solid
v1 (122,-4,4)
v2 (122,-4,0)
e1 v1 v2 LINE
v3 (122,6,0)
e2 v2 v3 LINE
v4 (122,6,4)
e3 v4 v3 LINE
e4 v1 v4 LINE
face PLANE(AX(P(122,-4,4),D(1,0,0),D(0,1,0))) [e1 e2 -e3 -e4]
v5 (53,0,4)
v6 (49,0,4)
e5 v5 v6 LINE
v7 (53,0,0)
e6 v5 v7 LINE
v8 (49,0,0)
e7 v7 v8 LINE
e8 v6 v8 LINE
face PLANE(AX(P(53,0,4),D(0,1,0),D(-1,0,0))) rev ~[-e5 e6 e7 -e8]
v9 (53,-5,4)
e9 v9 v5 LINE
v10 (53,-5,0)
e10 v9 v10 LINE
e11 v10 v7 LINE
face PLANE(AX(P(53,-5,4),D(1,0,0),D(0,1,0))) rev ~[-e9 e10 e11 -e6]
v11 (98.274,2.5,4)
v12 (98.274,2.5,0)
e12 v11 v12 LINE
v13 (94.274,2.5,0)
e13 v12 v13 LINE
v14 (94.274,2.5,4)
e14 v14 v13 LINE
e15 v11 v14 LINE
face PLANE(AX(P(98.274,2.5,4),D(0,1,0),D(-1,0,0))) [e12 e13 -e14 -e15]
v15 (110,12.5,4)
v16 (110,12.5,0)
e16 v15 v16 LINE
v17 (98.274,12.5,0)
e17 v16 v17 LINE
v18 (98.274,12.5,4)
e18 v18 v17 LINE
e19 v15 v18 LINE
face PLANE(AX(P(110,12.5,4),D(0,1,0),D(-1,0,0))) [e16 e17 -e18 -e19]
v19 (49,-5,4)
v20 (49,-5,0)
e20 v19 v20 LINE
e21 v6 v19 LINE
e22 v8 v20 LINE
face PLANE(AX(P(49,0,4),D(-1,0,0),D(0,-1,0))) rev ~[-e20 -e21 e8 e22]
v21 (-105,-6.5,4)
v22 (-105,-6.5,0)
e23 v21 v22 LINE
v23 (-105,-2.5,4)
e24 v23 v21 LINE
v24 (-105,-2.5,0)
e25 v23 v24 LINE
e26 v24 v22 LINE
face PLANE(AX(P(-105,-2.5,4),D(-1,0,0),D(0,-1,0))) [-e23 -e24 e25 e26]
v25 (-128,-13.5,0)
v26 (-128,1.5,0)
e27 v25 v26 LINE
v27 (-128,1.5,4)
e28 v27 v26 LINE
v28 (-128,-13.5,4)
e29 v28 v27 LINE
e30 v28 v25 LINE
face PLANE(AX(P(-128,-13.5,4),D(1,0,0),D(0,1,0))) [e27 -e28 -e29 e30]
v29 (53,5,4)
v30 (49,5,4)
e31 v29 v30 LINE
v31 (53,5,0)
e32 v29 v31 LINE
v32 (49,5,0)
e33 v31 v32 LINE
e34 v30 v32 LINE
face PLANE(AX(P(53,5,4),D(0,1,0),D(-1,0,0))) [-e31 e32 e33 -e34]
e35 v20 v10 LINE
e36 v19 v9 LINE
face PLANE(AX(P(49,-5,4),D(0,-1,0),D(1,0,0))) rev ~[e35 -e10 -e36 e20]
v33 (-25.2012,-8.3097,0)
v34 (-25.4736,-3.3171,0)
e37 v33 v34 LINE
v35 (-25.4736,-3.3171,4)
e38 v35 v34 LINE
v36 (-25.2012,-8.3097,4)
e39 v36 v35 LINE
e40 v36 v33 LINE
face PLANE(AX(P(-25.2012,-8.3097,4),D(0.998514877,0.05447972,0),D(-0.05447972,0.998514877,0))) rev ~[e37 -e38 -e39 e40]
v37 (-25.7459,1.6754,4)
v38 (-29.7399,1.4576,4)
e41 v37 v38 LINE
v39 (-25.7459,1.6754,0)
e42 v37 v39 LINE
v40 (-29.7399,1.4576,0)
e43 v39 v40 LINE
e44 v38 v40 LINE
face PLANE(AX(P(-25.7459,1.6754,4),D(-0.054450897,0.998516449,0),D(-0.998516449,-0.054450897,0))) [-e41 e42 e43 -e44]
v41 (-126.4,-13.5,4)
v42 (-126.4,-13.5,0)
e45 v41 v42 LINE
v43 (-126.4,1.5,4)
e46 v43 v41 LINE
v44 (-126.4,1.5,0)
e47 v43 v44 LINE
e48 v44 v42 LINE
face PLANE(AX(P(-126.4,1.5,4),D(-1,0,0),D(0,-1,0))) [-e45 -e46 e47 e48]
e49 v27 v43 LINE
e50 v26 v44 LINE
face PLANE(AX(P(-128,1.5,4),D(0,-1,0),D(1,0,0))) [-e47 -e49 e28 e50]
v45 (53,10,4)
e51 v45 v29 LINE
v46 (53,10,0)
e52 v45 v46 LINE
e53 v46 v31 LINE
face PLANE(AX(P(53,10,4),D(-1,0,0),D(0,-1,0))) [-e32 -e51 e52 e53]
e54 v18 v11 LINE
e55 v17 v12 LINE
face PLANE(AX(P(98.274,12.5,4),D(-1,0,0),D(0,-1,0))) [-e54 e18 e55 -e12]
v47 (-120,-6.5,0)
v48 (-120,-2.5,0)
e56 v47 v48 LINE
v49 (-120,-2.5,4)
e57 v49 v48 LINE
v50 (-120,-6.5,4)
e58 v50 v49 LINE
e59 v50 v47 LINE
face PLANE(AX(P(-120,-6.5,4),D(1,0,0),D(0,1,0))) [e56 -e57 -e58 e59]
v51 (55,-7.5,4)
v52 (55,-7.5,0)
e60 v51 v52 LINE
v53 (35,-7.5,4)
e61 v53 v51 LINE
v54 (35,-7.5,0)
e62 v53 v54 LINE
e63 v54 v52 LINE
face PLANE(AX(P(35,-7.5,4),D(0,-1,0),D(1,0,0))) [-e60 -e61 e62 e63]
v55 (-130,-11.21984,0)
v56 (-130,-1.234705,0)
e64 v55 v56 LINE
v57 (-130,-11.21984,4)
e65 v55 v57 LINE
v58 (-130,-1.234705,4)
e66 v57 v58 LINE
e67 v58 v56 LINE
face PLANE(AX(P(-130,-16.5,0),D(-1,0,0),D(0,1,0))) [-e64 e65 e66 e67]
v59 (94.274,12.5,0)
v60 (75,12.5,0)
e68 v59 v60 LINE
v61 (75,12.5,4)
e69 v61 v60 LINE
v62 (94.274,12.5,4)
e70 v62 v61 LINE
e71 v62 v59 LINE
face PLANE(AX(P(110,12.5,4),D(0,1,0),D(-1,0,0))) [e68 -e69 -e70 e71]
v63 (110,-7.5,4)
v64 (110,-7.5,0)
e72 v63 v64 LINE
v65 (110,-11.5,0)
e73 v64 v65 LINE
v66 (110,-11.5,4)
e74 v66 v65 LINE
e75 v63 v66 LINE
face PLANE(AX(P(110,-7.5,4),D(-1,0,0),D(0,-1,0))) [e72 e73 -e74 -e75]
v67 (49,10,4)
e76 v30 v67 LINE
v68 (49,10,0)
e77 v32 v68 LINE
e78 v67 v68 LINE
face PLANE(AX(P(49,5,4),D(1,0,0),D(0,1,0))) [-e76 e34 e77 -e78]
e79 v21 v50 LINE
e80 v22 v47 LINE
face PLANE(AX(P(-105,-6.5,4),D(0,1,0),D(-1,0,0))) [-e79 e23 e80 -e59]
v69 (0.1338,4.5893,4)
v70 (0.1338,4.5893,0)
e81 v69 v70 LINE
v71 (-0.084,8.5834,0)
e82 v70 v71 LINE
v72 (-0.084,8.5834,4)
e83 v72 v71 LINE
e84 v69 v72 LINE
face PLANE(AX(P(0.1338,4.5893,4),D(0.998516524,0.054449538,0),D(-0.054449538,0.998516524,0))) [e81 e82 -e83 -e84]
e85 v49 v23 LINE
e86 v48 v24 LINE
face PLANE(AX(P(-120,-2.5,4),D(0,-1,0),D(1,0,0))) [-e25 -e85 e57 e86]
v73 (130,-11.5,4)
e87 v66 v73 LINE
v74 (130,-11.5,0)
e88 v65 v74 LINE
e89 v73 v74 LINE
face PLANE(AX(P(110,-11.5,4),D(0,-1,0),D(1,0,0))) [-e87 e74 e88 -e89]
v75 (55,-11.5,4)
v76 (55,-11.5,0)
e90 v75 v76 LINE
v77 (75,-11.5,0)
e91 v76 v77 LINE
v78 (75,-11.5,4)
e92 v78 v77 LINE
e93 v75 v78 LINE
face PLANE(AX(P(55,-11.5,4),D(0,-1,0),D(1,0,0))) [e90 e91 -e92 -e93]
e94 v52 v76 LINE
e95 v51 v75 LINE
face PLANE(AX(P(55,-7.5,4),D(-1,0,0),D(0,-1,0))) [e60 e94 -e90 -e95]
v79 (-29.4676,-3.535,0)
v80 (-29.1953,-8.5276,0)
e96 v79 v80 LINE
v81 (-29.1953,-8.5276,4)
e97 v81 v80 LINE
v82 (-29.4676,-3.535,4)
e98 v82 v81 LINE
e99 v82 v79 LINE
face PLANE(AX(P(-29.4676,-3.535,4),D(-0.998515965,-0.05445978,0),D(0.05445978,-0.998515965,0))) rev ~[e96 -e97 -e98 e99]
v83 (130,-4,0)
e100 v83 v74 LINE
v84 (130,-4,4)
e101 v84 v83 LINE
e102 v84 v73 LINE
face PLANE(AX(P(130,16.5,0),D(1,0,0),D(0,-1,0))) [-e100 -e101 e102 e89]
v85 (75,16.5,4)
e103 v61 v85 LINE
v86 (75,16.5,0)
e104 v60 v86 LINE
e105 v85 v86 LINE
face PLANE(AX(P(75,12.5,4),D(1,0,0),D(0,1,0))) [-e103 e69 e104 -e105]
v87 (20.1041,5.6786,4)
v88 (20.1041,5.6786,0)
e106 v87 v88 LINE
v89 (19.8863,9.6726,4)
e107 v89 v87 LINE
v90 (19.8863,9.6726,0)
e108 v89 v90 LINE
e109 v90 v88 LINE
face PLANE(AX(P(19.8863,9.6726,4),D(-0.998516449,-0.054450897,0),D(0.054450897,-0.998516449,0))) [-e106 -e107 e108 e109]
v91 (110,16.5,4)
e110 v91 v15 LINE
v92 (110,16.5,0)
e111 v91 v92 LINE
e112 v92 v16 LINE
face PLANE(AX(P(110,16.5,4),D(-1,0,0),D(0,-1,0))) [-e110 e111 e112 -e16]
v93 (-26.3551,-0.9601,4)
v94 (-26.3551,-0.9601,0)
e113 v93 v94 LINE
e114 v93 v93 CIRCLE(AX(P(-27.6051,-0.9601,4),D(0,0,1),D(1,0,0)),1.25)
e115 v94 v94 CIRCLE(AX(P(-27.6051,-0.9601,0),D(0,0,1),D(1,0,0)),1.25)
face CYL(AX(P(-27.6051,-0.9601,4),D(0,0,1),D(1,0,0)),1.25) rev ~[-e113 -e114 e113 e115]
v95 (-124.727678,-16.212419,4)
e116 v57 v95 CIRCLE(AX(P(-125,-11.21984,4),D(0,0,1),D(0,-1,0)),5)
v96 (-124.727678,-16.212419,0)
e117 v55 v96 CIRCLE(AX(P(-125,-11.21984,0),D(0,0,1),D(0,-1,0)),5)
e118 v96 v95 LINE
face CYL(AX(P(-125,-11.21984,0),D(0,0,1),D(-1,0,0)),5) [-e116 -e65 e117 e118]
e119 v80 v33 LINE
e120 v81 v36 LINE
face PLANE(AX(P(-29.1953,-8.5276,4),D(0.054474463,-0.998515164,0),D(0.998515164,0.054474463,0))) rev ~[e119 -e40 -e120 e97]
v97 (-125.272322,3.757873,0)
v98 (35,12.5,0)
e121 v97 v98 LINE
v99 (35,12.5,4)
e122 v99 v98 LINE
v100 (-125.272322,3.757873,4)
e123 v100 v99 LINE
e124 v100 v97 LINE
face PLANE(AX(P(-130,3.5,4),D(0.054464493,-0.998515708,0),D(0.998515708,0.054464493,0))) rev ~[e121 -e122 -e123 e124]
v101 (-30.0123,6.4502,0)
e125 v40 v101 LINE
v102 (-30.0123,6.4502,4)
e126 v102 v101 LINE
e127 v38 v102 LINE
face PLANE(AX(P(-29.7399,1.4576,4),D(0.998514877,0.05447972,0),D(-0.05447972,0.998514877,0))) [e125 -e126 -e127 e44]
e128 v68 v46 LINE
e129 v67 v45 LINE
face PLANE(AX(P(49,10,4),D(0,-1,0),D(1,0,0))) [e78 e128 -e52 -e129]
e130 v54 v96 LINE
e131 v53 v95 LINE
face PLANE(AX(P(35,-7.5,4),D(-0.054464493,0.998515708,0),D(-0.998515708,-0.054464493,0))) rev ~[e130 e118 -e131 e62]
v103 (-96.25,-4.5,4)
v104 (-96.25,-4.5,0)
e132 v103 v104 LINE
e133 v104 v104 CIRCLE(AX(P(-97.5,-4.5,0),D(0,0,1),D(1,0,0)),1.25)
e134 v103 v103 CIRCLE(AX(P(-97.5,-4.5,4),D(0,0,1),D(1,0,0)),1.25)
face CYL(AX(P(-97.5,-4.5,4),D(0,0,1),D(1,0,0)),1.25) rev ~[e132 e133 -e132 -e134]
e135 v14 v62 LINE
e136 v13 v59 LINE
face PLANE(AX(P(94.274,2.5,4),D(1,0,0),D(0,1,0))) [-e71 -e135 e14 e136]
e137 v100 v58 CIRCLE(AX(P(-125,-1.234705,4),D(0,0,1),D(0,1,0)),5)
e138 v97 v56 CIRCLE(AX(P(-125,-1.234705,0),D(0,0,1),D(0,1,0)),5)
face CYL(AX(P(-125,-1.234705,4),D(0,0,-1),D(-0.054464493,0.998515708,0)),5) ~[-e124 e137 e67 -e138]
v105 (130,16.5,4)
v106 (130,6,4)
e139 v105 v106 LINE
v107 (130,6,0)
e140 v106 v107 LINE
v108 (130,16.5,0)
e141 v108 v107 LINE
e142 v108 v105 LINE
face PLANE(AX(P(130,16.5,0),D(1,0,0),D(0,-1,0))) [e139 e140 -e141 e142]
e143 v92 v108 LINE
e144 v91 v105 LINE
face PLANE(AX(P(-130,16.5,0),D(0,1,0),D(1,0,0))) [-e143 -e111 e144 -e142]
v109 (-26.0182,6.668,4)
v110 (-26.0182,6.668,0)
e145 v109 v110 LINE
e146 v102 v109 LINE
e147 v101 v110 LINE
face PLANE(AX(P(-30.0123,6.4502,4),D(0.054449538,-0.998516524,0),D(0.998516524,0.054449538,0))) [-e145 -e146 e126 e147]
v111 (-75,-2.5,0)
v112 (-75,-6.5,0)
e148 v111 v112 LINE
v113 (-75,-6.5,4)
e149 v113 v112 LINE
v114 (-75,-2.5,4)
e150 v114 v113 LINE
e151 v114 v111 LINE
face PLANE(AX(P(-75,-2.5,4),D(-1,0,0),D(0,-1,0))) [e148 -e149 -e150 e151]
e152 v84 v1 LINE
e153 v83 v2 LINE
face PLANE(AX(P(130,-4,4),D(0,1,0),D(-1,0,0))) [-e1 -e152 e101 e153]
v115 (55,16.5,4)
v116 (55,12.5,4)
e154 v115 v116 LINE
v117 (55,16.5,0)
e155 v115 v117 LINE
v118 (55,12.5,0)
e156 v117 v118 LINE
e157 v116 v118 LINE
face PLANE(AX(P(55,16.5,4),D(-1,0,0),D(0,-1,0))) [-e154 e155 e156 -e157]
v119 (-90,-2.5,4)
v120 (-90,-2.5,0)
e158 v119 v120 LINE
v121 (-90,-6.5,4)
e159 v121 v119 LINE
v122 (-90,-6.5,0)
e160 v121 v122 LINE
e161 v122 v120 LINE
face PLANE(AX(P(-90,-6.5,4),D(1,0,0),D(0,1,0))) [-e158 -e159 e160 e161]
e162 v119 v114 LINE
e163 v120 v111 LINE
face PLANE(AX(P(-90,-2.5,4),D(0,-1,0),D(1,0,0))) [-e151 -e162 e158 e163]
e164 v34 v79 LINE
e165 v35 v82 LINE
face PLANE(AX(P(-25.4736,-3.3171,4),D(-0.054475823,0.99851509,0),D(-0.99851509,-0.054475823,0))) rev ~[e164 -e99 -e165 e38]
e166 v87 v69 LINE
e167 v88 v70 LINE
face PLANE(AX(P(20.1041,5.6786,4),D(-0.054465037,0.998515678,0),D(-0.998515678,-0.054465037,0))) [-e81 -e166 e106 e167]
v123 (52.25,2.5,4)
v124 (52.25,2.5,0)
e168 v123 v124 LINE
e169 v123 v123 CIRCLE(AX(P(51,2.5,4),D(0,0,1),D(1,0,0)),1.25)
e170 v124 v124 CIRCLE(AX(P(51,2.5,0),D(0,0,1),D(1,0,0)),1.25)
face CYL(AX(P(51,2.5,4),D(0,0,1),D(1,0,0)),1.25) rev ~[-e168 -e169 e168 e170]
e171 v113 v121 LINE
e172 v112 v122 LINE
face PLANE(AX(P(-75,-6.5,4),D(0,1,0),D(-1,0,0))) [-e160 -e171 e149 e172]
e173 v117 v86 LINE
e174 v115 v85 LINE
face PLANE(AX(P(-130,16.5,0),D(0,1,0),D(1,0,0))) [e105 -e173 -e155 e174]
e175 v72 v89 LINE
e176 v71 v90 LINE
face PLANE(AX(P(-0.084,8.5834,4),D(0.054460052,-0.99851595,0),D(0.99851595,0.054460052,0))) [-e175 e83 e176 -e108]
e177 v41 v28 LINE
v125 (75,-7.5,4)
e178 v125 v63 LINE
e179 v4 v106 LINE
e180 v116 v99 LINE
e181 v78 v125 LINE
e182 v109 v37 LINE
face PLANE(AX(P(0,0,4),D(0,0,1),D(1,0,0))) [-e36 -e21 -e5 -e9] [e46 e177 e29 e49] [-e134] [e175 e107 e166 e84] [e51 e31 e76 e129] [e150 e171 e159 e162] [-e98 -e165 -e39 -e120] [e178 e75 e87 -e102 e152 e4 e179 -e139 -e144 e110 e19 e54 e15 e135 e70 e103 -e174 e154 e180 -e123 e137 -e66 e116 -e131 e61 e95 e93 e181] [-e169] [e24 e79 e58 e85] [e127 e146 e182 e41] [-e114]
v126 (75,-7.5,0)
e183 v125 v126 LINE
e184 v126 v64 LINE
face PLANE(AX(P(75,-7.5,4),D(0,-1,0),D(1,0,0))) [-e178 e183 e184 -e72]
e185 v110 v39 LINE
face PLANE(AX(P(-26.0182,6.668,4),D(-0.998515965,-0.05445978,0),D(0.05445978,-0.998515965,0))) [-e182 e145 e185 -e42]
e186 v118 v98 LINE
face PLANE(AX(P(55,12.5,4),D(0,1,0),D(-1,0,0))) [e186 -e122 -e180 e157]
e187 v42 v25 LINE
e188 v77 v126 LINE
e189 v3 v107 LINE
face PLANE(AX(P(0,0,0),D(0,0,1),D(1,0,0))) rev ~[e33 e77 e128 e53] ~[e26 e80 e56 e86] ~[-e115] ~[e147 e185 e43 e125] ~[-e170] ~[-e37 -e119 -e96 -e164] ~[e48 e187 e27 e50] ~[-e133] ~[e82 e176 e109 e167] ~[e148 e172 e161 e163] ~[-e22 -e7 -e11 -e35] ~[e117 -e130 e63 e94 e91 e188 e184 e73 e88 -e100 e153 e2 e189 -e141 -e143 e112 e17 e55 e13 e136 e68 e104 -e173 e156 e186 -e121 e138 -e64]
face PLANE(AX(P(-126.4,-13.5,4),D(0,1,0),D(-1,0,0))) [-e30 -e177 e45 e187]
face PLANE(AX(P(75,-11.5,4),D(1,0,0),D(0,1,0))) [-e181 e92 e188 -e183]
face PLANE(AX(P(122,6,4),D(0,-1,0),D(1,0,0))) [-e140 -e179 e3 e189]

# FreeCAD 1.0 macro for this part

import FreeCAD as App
import Part
import Sketcher
from FreeCAD import Vector
Q = App.Units.Quantity


def edges_at(feature, points):
    """Names of the edges that pass closest to the given points."""
    edges = feature.Shape.Edges
    near = lambda p: min(range(len(edges)), key=lambda i: edges[i].distToShape(Part.Vertex(*p))[0])
    return sorted({f"Edge{near(p) + 1}" for p in points})

doc = App.newDocument("Part")
body = doc.addObject("PartDesign::Body", "Body")

# Sketch on XY plane
sketch1 = body.newObject("Sketcher::SketchObject", "Sketch")
sketch1.AttachmentSupport = (doc.getObject("XY_Plane"), [""])
sketch1.MapMode = "FlatFace"
sketch1.addGeometry([
    Part.LineSegment(Vector(130, 16.5, 0), Vector(-130, 16.5, 0)),
    Part.LineSegment(Vector(-130, 16.5, 0), Vector(-130, -16.5, 0)),
    Part.LineSegment(Vector(-130, -16.5, 0), Vector(130, -16.5, 0)),
    Part.LineSegment(Vector(130, -16.5, 0), Vector(130, 16.5, 0)),
], False)
sketch1.addConstraint([
    Sketcher.Constraint("Coincident", 0, 2, 1, 1),
    Sketcher.Constraint("Coincident", 1, 2, 2, 1),
    Sketcher.Constraint("Coincident", 2, 2, 3, 1),
    Sketcher.Constraint("Coincident", 3, 2, 0, 1),
    Sketcher.Constraint("Horizontal", 0),
    Sketcher.Constraint("Vertical", 1),
    Sketcher.Constraint("Horizontal", 2),
    Sketcher.Constraint("Vertical", 3),
    Sketcher.Constraint("Symmetric", 0, 2, 2, 2, -1, 1),
    Sketcher.Constraint("DistanceX", 0, 2, 0, 1, Q("260 mm")),
    Sketcher.Constraint("DistanceY", 1, 2, 1, 1, Q("33 mm")),
])
pad1 = body.newObject("PartDesign::Pad", "Pad")
pad1.Profile = sketch1
pad1.Length = 4

# Sketch on XY plane
sketch2 = body.newObject("Sketcher::SketchObject", "Sketch001")
sketch2.AttachmentSupport = (doc.getObject("XY_Plane"), [""])
sketch2.MapMode = "FlatFace"
sketch2.AttachmentOffset = App.Placement(Vector(0, 0, 4), App.Rotation())
sketch2.addGeometry([
    Part.LineSegment(Vector(130, -16.5, 0), Vector(130, -11.5, 0)),  # 0
    Part.LineSegment(Vector(130, -11.5, 0), Vector(110, -11.5, 0)),  # 1
    Part.LineSegment(Vector(110, -11.5, 0), Vector(110, -7.5, 0)),  # 2
    Part.LineSegment(Vector(110, -7.5, 0), Vector(75, -7.5, 0)),  # 3
    Part.LineSegment(Vector(75, -7.5, 0), Vector(75, -11.5, 0)),  # 4
    Part.LineSegment(Vector(75, -11.5, 0), Vector(55, -11.5, 0)),  # 5
    Part.LineSegment(Vector(55, -11.5, 0), Vector(55, -7.5, 0)),  # 6
    Part.LineSegment(Vector(55, -7.5, 0), Vector(35, -7.5, 0)),  # 7
    Part.LineSegment(Vector(35, -7.5, 0), Vector(35, -16.5, 0)),  # 8
    Part.LineSegment(Vector(35, -16.5, 0), Vector(130, -16.5, 0)),  # 9
    Part.LineSegment(Vector(110, 12.5, 0), Vector(110, 16.5, 0)),  # 10
    Part.LineSegment(Vector(110, 16.5, 0), Vector(75, 16.5, 0)),  # 11
    Part.LineSegment(Vector(75, 16.5, 0), Vector(75, 12.5, 0)),  # 12
    Part.LineSegment(Vector(75, 12.5, 0), Vector(110, 12.5, 0)),  # 13
    Part.LineSegment(Vector(55, 12.5, 0), Vector(55, 16.5, 0)),  # 14
    Part.LineSegment(Vector(55, 16.5, 0), Vector(-130, 16.5, 0)),  # 15
    Part.LineSegment(Vector(-130, 16.5, 0), Vector(-130, 12.5, 0)),  # 16
    Part.LineSegment(Vector(-130, 12.5, 0), Vector(55, 12.5, 0)),  # 17
], False)
sketch2.addConstraint([
    Sketcher.Constraint("Coincident", 0, 2, 1, 1),
    Sketcher.Constraint("Coincident", 1, 2, 2, 1),
    Sketcher.Constraint("Coincident", 2, 2, 3, 1),
    Sketcher.Constraint("Coincident", 3, 2, 4, 1),
    Sketcher.Constraint("Coincident", 4, 2, 5, 1),
    Sketcher.Constraint("Coincident", 5, 2, 6, 1),
    Sketcher.Constraint("Coincident", 6, 2, 7, 1),
    Sketcher.Constraint("Coincident", 7, 2, 8, 1),
    Sketcher.Constraint("Coincident", 8, 2, 9, 1),
    Sketcher.Constraint("Coincident", 9, 2, 0, 1),
    Sketcher.Constraint("Coincident", 10, 2, 11, 1),
    Sketcher.Constraint("Coincident", 11, 2, 12, 1),
    Sketcher.Constraint("Coincident", 12, 2, 13, 1),
    Sketcher.Constraint("Coincident", 13, 2, 10, 1),
    Sketcher.Constraint("Coincident", 14, 2, 15, 1),
    Sketcher.Constraint("Coincident", 15, 2, 16, 1),
    Sketcher.Constraint("Coincident", 16, 2, 17, 1),
    Sketcher.Constraint("Coincident", 17, 2, 14, 1),
    Sketcher.Constraint("Vertical", 0),
    Sketcher.Constraint("Horizontal", 1),
    Sketcher.Constraint("Vertical", 2),
    Sketcher.Constraint("Horizontal", 3),
    Sketcher.Constraint("Vertical", 4),
    Sketcher.Constraint("Horizontal", 5),
    Sketcher.Constraint("Vertical", 6),
    Sketcher.Constraint("Horizontal", 7),
    Sketcher.Constraint("Vertical", 8),
    Sketcher.Constraint("Horizontal", 9),
    Sketcher.Constraint("Vertical", 10),
    Sketcher.Constraint("Horizontal", 11),
    Sketcher.Constraint("Vertical", 12),
    Sketcher.Constraint("Horizontal", 13),
    Sketcher.Constraint("Vertical", 14),
    Sketcher.Constraint("Horizontal", 15),
    Sketcher.Constraint("Vertical", 16),
    Sketcher.Constraint("Horizontal", 17),
    Sketcher.Constraint("Symmetric", 9, 2, 15, 2, -1, 1),
    Sketcher.Constraint("Horizontal", 1, 2, 4, 2),
    Sketcher.Constraint("Horizontal", 3, 2, 6, 2),
    Sketcher.Constraint("Horizontal", 11, 2, 14, 2),
    Sketcher.Constraint("Horizontal", 13, 2, 16, 2),
    Sketcher.Constraint("Vertical", 2, 2, 10, 2),
    Sketcher.Constraint("Vertical", 4, 2, 11, 2),
    Sketcher.Constraint("Vertical", 6, 2, 14, 2),
    Sketcher.Constraint("Equal", 1, 5),
    Sketcher.Constraint("Equal", 5, 7),
    Sketcher.Constraint("Equal", 6, 10),
    Sketcher.Constraint("DistanceX", 1, 2, 1, 1, Q("20 mm")),
    Sketcher.Constraint("DistanceX", 3, 2, 3, 1, Q("35 mm")),
    Sketcher.Constraint("DistanceX", 15, 2, 15, 1, Q("185 mm")),
    Sketcher.Constraint("DistanceY", 0, 1, 0, 2, Q("5 mm")),
    Sketcher.Constraint("DistanceY", 2, 1, 2, 2, Q("4 mm")),
    Sketcher.Constraint("DistanceY", 3, 2, 12, 2, Q("20 mm")),
])
pocket1 = body.newObject("PartDesign::Pocket", "Pocket")
pocket1.Profile = sketch2
pocket1.Length = 4

# Sketch on XY plane
sketch3 = body.newObject("Sketcher::SketchObject", "Sketch002")
sketch3.AttachmentSupport = (doc.getObject("XY_Plane"), [""])
sketch3.MapMode = "FlatFace"
sketch3.AttachmentOffset = App.Placement(Vector(0, 0, 4), App.Rotation())
sketch3.addGeometry([
    Part.LineSegment(Vector(-130, 3.5, 0), Vector(35, 12.5, 0)),  # 0
    Part.LineSegment(Vector(35, 12.5, 0), Vector(-130, 12.5, 0)),  # 1
    Part.LineSegment(Vector(-130, 12.5, 0), Vector(-130, 3.5, 0)),  # 2
    Part.LineSegment(Vector(35, -7.5, 0), Vector(-130, -16.5, 0)),  # 3
    Part.LineSegment(Vector(-130, -16.5, 0), Vector(35, -16.5, 0)),  # 4
    Part.LineSegment(Vector(35, -16.5, 0), Vector(35, -7.5, 0)),  # 5
], False)
sketch3.addConstraint([
    Sketcher.Constraint("Coincident", 0, 2, 1, 1),
    Sketcher.Constraint("Coincident", 1, 2, 2, 1),
    Sketcher.Constraint("Coincident", 2, 2, 0, 1),
    Sketcher.Constraint("Coincident", 3, 2, 4, 1),
    Sketcher.Constraint("Coincident", 4, 2, 5, 1),
    Sketcher.Constraint("Coincident", 5, 2, 3, 1),
    Sketcher.Constraint("Horizontal", 1),
    Sketcher.Constraint("Vertical", 2),
    Sketcher.Constraint("Horizontal", 4),
    Sketcher.Constraint("Vertical", 5),
    Sketcher.Constraint("Parallel", 0, 3),
    Sketcher.Constraint("Vertical", 2, 2, 3, 2),
    Sketcher.Constraint("Vertical", 0, 2, 4, 2),
    Sketcher.Constraint("DistanceY", 3, 2, 2, 2, Q("20 mm")),
    Sketcher.Constraint("DistanceX", 1, 2, 1, 1, Q("165 mm")),
    Sketcher.Constraint("DistanceY", 2, 2, 2, 1, Q("9 mm")),
    Sketcher.Constraint("DistanceX", -1, 1, 0, 2, Q("35 mm")),
    Sketcher.Constraint("DistanceY", -1, 1, 0, 2, Q("12.5 mm")),
])
pocket2 = body.newObject("PartDesign::Pocket", "Pocket001")
pocket2.Profile = sketch3
pocket2.Length = 4

# Sketch on XY plane
sketch4 = body.newObject("Sketcher::SketchObject", "Sketch003")
sketch4.AttachmentSupport = (doc.getObject("XY_Plane"), [""])
sketch4.MapMode = "FlatFace"
sketch4.AttachmentOffset = App.Placement(Vector(0, 0, 4), App.Rotation())
sketch4.addGeometry([
    Part.LineSegment(Vector(98.274, 2.5, 0), Vector(98.274, 12.5, 0)),
    Part.LineSegment(Vector(98.274, 12.5, 0), Vector(94.274, 12.5, 0)),
    Part.LineSegment(Vector(94.274, 12.5, 0), Vector(94.274, 2.5, 0)),
    Part.LineSegment(Vector(94.274, 2.5, 0), Vector(98.274, 2.5, 0)),
], False)
sketch4.addConstraint([
    Sketcher.Constraint("Coincident", 0, 2, 1, 1),
    Sketcher.Constraint("Coincident", 1, 2, 2, 1),
    Sketcher.Constraint("Coincident", 2, 2, 3, 1),
    Sketcher.Constraint("Coincident", 3, 2, 0, 1),
    Sketcher.Constraint("Vertical", 0),
    Sketcher.Constraint("Horizontal", 1),
    Sketcher.Constraint("Vertical", 2),
    Sketcher.Constraint("Horizontal", 3),
    Sketcher.Constraint("DistanceX", 1, 2, 1, 1, Q("4 mm")),
    Sketcher.Constraint("DistanceY", 0, 1, 0, 2, Q("10 mm")),
    Sketcher.Constraint("DistanceY", -1, 1, 0, 2, Q("12.5 mm")),
    Sketcher.Constraint("DistanceX", -1, 1, 0, 2, Q("98.274 mm")),
])
pocket3 = body.newObject("PartDesign::Pocket", "Pocket002")
pocket3.Profile = sketch4
pocket3.Length = 4

# Sketch on XY plane
sketch5 = body.newObject("Sketcher::SketchObject", "Sketch004")
sketch5.AttachmentSupport = (doc.getObject("XY_Plane"), [""])
sketch5.MapMode = "FlatFace"
sketch5.AttachmentOffset = App.Placement(Vector(0, 0, 4), App.Rotation())
sketch5.addGeometry([
    Part.LineSegment(Vector(-105, -2.5, 0), Vector(-120, -2.5, 0)),  # 0
    Part.LineSegment(Vector(-120, -2.5, 0), Vector(-120, -6.5, 0)),  # 1
    Part.LineSegment(Vector(-120, -6.5, 0), Vector(-105, -6.5, 0)),  # 2
    Part.LineSegment(Vector(-105, -6.5, 0), Vector(-105, -2.5, 0)),  # 3
    Part.LineSegment(Vector(-75, -2.5, 0), Vector(-90, -2.5, 0)),  # 4
    Part.LineSegment(Vector(-90, -2.5, 0), Vector(-90, -6.5, 0)),  # 5
    Part.LineSegment(Vector(-90, -6.5, 0), Vector(-75, -6.5, 0)),  # 6
    Part.LineSegment(Vector(-75, -6.5, 0), Vector(-75, -2.5, 0)),  # 7
    Part.Circle(Vector(-97.5, -4.5, 0), Vector(0, 0, 1), 1.25),  # 8
], False)
sketch5.addConstraint([
    Sketcher.Constraint("Coincident", 0, 2, 1, 1),
    Sketcher.Constraint("Coincident", 1, 2, 2, 1),
    Sketcher.Constraint("Coincident", 2, 2, 3, 1),
    Sketcher.Constraint("Coincident", 3, 2, 0, 1),
    Sketcher.Constraint("Coincident", 4, 2, 5, 1),
    Sketcher.Constraint("Coincident", 5, 2, 6, 1),
    Sketcher.Constraint("Coincident", 6, 2, 7, 1),
    Sketcher.Constraint("Coincident", 7, 2, 4, 1),
    Sketcher.Constraint("Horizontal", 0),
    Sketcher.Constraint("Vertical", 1),
    Sketcher.Constraint("Horizontal", 2),
    Sketcher.Constraint("Vertical", 3),
    Sketcher.Constraint("Horizontal", 4),
    Sketcher.Constraint("Vertical", 5),
    Sketcher.Constraint("Horizontal", 6),
    Sketcher.Constraint("Vertical", 7),
    Sketcher.Constraint("Horizontal", 3, 2, 4, 2),
    Sketcher.Constraint("Horizontal", 2, 2, 5, 2),
    Sketcher.Constraint("Equal", 2, 4),
    Sketcher.Constraint("Diameter", 8, Q("2.5 mm")),
    Sketcher.Constraint("DistanceX", 0, 2, 0, 1, Q("15 mm")),
    Sketcher.Constraint("DistanceY", 1, 2, 1, 1, Q("4 mm")),
    Sketcher.Constraint("DistanceY", 8, 3, 0, 2, Q("2 mm")),
    Sketcher.Constraint("DistanceX", 3, 2, 4, 2, Q("15 mm")),
    Sketcher.Constraint("DistanceY", 0, 2, -1, 1, Q("2.5 mm")),
    Sketcher.Constraint("DistanceX", 2, 2, 8, 3, Q("7.5 mm")),
    Sketcher.Constraint("DistanceX", 0, 2, -1, 1, Q("120 mm")),
])
pocket4 = body.newObject("PartDesign::Pocket", "Pocket003")
pocket4.Profile = sketch5
pocket4.Length = 4

# Sketch on XY plane
sketch6 = body.newObject("Sketcher::SketchObject", "Sketch005")
sketch6.AttachmentSupport = (doc.getObject("XY_Plane"), [""])
sketch6.MapMode = "FlatFace"
sketch6.AttachmentOffset = App.Placement(Vector(0, 0, 4), App.Rotation())
sketch6.addGeometry([
    Part.LineSegment(Vector(130, -4, 0), Vector(130, 6, 0)),
    Part.LineSegment(Vector(130, 6, 0), Vector(122, 6, 0)),
    Part.LineSegment(Vector(122, 6, 0), Vector(122, -4, 0)),
    Part.LineSegment(Vector(122, -4, 0), Vector(130, -4, 0)),
], False)
sketch6.addConstraint([
    Sketcher.Constraint("Coincident", 0, 2, 1, 1),
    Sketcher.Constraint("Coincident", 1, 2, 2, 1),
    Sketcher.Constraint("Coincident", 2, 2, 3, 1),
    Sketcher.Constraint("Coincident", 3, 2, 0, 1),
    Sketcher.Constraint("Vertical", 0),
    Sketcher.Constraint("Horizontal", 1),
    Sketcher.Constraint("Vertical", 2),
    Sketcher.Constraint("Horizontal", 3),
    Sketcher.Constraint("DistanceX", 1, 2, 1, 1, Q("8 mm")),
    Sketcher.Constraint("DistanceY", 0, 1, 0, 2, Q("10 mm")),
    Sketcher.Constraint("DistanceY", 2, 2, -1, 1, Q("4 mm")),
    Sketcher.Constraint("DistanceX", -1, 1, 0, 2, Q("130 mm")),
])
pocket5 = body.newObject("PartDesign::Pocket", "Pocket004")
pocket5.Profile = sketch6
pocket5.Length = 4

# Sketch on XY plane
sketch7 = body.newObject("Sketcher::SketchObject", "Sketch006")
sketch7.AttachmentSupport = (doc.getObject("XY_Plane"), [""])
sketch7.MapMode = "FlatFace"
sketch7.AttachmentOffset = App.Placement(Vector(0, 0, 4), App.Rotation())
sketch7.addGeometry([
    Part.LineSegment(Vector(19.8863, 9.6726, 0), Vector(-0.084, 8.5834, 0)),
    Part.LineSegment(Vector(-0.084, 8.5834, 0), Vector(0.1338, 4.5893, 0)),
    Part.LineSegment(Vector(0.1338, 4.5893, 0), Vector(20.1041, 5.6786, 0)),
    Part.LineSegment(Vector(20.1041, 5.6786, 0), Vector(19.8863, 9.6726, 0)),
], False)
sketch7.addConstraint([
    Sketcher.Constraint("Coincident", 0, 2, 1, 1),
    Sketcher.Constraint("Coincident", 1, 2, 2, 1),
    Sketcher.Constraint("Coincident", 2, 2, 3, 1),
    Sketcher.Constraint("Coincident", 3, 2, 0, 1),
    Sketcher.Constraint("Perpendicular", 0, 1),
    Sketcher.Constraint("Perpendicular", 1, 2),
    Sketcher.Constraint("Perpendicular", 2, 3),
    Sketcher.Constraint("Distance", 0, Q("20 mm")),
    Sketcher.Constraint("Distance", 1, Q("4 mm")),
    Sketcher.Constraint("DistanceX", 0, 2, -1, 1, Q("0.084 mm")),
    Sketcher.Constraint("DistanceX", -1, 1, 2, 2, Q("20.104 mm")),
    Sketcher.Constraint("DistanceY", -1, 1, 0, 2, Q("8.5834 mm")),
])
pocket6 = body.newObject("PartDesign::Pocket", "Pocket005")
pocket6.Profile = sketch7
pocket6.Length = 4

# Sketch on XY plane
sketch8 = body.newObject("Sketcher::SketchObject", "Sketch007")
sketch8.AttachmentSupport = (doc.getObject("XY_Plane"), [""])
sketch8.MapMode = "FlatFace"
sketch8.AttachmentOffset = App.Placement(Vector(0, 0, 4), App.Rotation())
sketch8.addGeometry([
    Part.LineSegment(Vector(-26.0182, 6.668, 0), Vector(-30.0123, 6.4502, 0)),  # 0
    Part.LineSegment(Vector(-30.0123, 6.4502, 0), Vector(-29.7399, 1.4576, 0)),  # 1
    Part.LineSegment(Vector(-29.7399, 1.4576, 0), Vector(-25.7459, 1.6754, 0)),  # 2
    Part.LineSegment(Vector(-25.7459, 1.6754, 0), Vector(-26.0182, 6.668, 0)),  # 3
    Part.LineSegment(Vector(-29.4676, -3.535, 0), Vector(-29.1953, -8.5276, 0)),  # 4
    Part.LineSegment(Vector(-29.1953, -8.5276, 0), Vector(-25.2012, -8.3097, 0)),  # 5
    Part.LineSegment(Vector(-25.2012, -8.3097, 0), Vector(-25.4736, -3.3171, 0)),  # 6
    Part.LineSegment(Vector(-25.4736, -3.3171, 0), Vector(-29.4676, -3.535, 0)),  # 7
    Part.Circle(Vector(-27.6051, -0.9601, 0), Vector(0, 0, 1), 1.25),  # 8
    Part.LineSegment(Vector(53, 10, 0), Vector(49, 10, 0)),  # 9
    Part.LineSegment(Vector(49, 10, 0), Vector(49, 5, 0)),  # 10
    Part.LineSegment(Vector(49, 5, 0), Vector(53, 5, 0)),  # 11
    Part.LineSegment(Vector(53, 5, 0), Vector(53, 10, 0)),  # 12
    Part.LineSegment(Vector(49, 0, 0), Vector(49, -5, 0)),  # 13
    Part.LineSegment(Vector(49, -5, 0), Vector(53, -5, 0)),  # 14
    Part.LineSegment(Vector(53, -5, 0), Vector(53, 0, 0)),  # 15
    Part.LineSegment(Vector(53, 0, 0), Vector(49, 0, 0)),  # 16
    Part.Circle(Vector(51, 2.5, 0), Vector(0, 0, 1), 1.25),  # 17
], False)
sketch8.addConstraint([
    Sketcher.Constraint("Coincident", 0, 2, 1, 1),
    Sketcher.Constraint("Coincident", 1, 2, 2, 1),
    Sketcher.Constraint("Coincident", 2, 2, 3, 1),
    Sketcher.Constraint("Coincident", 3, 2, 0, 1),
    Sketcher.Constraint("Coincident", 4, 2, 5, 1),
    Sketcher.Constraint("Coincident", 5, 2, 6, 1),
    Sketcher.Constraint("Coincident", 6, 2, 7, 1),
    Sketcher.Constraint("Coincident", 7, 2, 4, 1),
    Sketcher.Constraint("Coincident", 9, 2, 10, 1),
    Sketcher.Constraint("Coincident", 10, 2, 11, 1),
    Sketcher.Constraint("Coincident", 11, 2, 12, 1),
    Sketcher.Constraint("Coincident", 12, 2, 9, 1),
    Sketcher.Constraint("Coincident", 13, 2, 14, 1),
    Sketcher.Constraint("Coincident", 14, 2, 15, 1),
    Sketcher.Constraint("Coincident", 15, 2, 16, 1),
    Sketcher.Constraint("Coincident", 16, 2, 13, 1),
    Sketcher.Constraint("Horizontal", 9),
    Sketcher.Constraint("Vertical", 10),
    Sketcher.Constraint("Horizontal", 11),
    Sketcher.Constraint("Vertical", 12),
    Sketcher.Constraint("Vertical", 13),
    Sketcher.Constraint("Horizontal", 14),
    Sketcher.Constraint("Vertical", 15),
    Sketcher.Constraint("Horizontal", 16),
    Sketcher.Constraint("PointOnObject", 15, 2, -1),
    Sketcher.Constraint("Diameter", 8, Q("2.5 mm")),
    Sketcher.Constraint("Diameter", 17, Q("2.5 mm")),
    Sketcher.Constraint("DistanceX", 9, 2, 9, 1, Q("4 mm")),
    Sketcher.Constraint("DistanceX", 14, 1, 14, 2, Q("4 mm")),
    Sketcher.Constraint("DistanceY", 10, 2, 10, 1, Q("5 mm")),
    Sketcher.Constraint("DistanceY", 13, 2, 13, 1, Q("5 mm")),
    Sketcher.Constraint("Distance", 0, Q("4 mm")),
    Sketcher.Constraint("Distance", 1, Q("5 mm")),
    Sketcher.Constraint("Distance", 2, Q("4 mm")),
    Sketcher.Constraint("Distance", 3, Q("5 mm")),
    Sketcher.Constraint("Distance", 4, Q("5 mm")),
    Sketcher.Constraint("Distance", 5, Q("4 mm")),
    Sketcher.Constraint("Distance", 6, Q("5 mm")),
    Sketcher.Constraint("Distance", 7, Q("4 mm")),
    Sketcher.Constraint("DistanceY", -1, 1, 9, 2, Q("10 mm")),
    Sketcher.Constraint("DistanceX", 9, 2, 17, 3, Q("2 mm")),
    Sketcher.Constraint("DistanceX", 13, 2, 17, 3, Q("2 mm")),
    Sketcher.Constraint("DistanceY", -1, 1, 17, 3, Q("2.5 mm")),
    Sketcher.Constraint("DistanceX", -1, 1, 17, 3, Q("51 mm")),
    Sketcher.Constraint("DistanceY", 8, 3, -1, 1, Q("0.96 mm")),
    Sketcher.Constraint("DistanceX", 1, 2, -1, 1, Q("29.74 mm")),
    Sketcher.Constraint("DistanceX", 8, 3, -1, 1, Q("27.605 mm")),
    Sketcher.Constraint("DistanceX", 2, 2, -1, 1, Q("25.746 mm")),
    Sketcher.Constraint("DistanceY", -1, 1, 3, 2, Q("6.668 mm")),
    Sketcher.Constraint("DistanceY", 6, 2, -1, 1, Q("3.317 mm")),
    Sketcher.Constraint("DistanceY", 7, 2, -1, 1, Q("3.535 mm")),
    Sketcher.Constraint("DistanceX", 8, 3, 3, 2, Q("1.587 mm")),
    Sketcher.Constraint("DistanceY", 4, 2, 2, 2, Q("10.203 mm")),
    Sketcher.Constraint("DistanceX", 0, 2, 4, 2, Q("0.817 mm")),
])
pocket7 = body.newObject("PartDesign::Pocket", "Pocket006")
pocket7.Profile = sketch8
pocket7.Length = 10

# Sketch on XY plane
sketch9 = body.newObject("Sketcher::SketchObject", "Sketch008")
sketch9.AttachmentSupport = (doc.getObject("XY_Plane"), [""])
sketch9.MapMode = "FlatFace"
sketch9.AttachmentOffset = App.Placement(Vector(0, 0, 4), App.Rotation())
sketch9.addGeometry([
    Part.LineSegment(Vector(-126.4, 1.5, 0), Vector(-128, 1.5, 0)),
    Part.LineSegment(Vector(-128, 1.5, 0), Vector(-128, -13.5, 0)),
    Part.LineSegment(Vector(-128, -13.5, 0), Vector(-126.4, -13.5, 0)),
    Part.LineSegment(Vector(-126.4, -13.5, 0), Vector(-126.4, 1.5, 0)),
], False)
sketch9.addConstraint([
    Sketcher.Constraint("Coincident", 0, 2, 1, 1),
    Sketcher.Constraint("Coincident", 1, 2, 2, 1),
    Sketcher.Constraint("Coincident", 2, 2, 3, 1),
    Sketcher.Constraint("Coincident", 3, 2, 0, 1),
    Sketcher.Constraint("Horizontal", 0),
    Sketcher.Constraint("Vertical", 1),
    Sketcher.Constraint("Horizontal", 2),
    Sketcher.Constraint("Vertical", 3),
    Sketcher.Constraint("DistanceY", 1, 2, 1, 1, Q("15 mm")),
    Sketcher.Constraint("DistanceX", 0, 2, 0, 1, Q("1.6 mm")),
    Sketcher.Constraint("DistanceX", 0, 2, -1, 1, Q("128 mm")),
    Sketcher.Constraint("DistanceY", -1, 1, 0, 2, Q("1.5 mm")),
])
pocket8 = body.newObject("PartDesign::Pocket", "Pocket007")
pocket8.Profile = sketch9
pocket8.Length = 10
doc.recompute()

fillet = body.newObject("PartDesign::Fillet", "Fillet")
fillet.Base = (pocket8, edges_at(pocket8, [(-130, 3.5, 2), (-130, -16.5, 2)]))
fillet.Radius = 5

doc.recompute()
